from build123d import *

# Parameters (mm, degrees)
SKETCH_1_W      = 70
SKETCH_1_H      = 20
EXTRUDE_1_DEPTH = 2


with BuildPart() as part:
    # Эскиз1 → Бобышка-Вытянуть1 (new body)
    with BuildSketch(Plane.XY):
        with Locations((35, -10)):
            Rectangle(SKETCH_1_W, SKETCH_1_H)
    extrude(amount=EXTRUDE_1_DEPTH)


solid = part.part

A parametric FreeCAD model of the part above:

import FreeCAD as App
import Part
import Sketcher
from FreeCAD import Vector
Q = App.Units.Quantity


def add_polygon(sketch, points):
    """Adds a closed chain of lines whose ends are joined by coincident constraints."""
    first, n = sketch.GeometryCount, len(points)
    for a, b in zip(points, points[1:] + points[:1]):
        sketch.addGeometry(Part.LineSegment(App.Vector(*a, 0), App.Vector(*b, 0)), False)
    for i in range(n):
        sketch.addConstraint(Sketcher.Constraint("Coincident", first + i, 2, first + (i + 1) % n, 1))

doc = App.newDocument("Part")
body = doc.addObject("PartDesign::Body", "Body")

# Sketch on XY plane
sketch1 = doc.addObject("Sketcher::SketchObject", "Sketch")
body.addObject(sketch1)
sketch1.AttachmentSupport = (doc.XY_Plane, [""])
sketch1.MapMode = "FlatFace"
add_polygon(sketch1, [(0, 0), (0, -20), (70, -20), (70, 0)])  # lines 0-3
sketch1.addConstraint(Sketcher.Constraint("Vertical", 0))
sketch1.addConstraint(Sketcher.Constraint("Horizontal", 1))
sketch1.addConstraint(Sketcher.Constraint("Vertical", 2))
sketch1.addConstraint(Sketcher.Constraint("Horizontal", 3))
sketch1.addConstraint(Sketcher.Constraint("Coincident", 3, 2, -1, 1))
sketch1.addConstraint(Sketcher.Constraint("DistanceX", 1, 1, 1, 2, Q("70 mm")))
sketch1.addConstraint(Sketcher.Constraint("DistanceY", 0, 2, 0, 1, Q("20 mm")))
pad1 = doc.addObject("PartDesign::Pad", "Pad")
body.addObject(pad1)
pad1.Profile = sketch1
pad1.Length = 2

doc.recompute()
